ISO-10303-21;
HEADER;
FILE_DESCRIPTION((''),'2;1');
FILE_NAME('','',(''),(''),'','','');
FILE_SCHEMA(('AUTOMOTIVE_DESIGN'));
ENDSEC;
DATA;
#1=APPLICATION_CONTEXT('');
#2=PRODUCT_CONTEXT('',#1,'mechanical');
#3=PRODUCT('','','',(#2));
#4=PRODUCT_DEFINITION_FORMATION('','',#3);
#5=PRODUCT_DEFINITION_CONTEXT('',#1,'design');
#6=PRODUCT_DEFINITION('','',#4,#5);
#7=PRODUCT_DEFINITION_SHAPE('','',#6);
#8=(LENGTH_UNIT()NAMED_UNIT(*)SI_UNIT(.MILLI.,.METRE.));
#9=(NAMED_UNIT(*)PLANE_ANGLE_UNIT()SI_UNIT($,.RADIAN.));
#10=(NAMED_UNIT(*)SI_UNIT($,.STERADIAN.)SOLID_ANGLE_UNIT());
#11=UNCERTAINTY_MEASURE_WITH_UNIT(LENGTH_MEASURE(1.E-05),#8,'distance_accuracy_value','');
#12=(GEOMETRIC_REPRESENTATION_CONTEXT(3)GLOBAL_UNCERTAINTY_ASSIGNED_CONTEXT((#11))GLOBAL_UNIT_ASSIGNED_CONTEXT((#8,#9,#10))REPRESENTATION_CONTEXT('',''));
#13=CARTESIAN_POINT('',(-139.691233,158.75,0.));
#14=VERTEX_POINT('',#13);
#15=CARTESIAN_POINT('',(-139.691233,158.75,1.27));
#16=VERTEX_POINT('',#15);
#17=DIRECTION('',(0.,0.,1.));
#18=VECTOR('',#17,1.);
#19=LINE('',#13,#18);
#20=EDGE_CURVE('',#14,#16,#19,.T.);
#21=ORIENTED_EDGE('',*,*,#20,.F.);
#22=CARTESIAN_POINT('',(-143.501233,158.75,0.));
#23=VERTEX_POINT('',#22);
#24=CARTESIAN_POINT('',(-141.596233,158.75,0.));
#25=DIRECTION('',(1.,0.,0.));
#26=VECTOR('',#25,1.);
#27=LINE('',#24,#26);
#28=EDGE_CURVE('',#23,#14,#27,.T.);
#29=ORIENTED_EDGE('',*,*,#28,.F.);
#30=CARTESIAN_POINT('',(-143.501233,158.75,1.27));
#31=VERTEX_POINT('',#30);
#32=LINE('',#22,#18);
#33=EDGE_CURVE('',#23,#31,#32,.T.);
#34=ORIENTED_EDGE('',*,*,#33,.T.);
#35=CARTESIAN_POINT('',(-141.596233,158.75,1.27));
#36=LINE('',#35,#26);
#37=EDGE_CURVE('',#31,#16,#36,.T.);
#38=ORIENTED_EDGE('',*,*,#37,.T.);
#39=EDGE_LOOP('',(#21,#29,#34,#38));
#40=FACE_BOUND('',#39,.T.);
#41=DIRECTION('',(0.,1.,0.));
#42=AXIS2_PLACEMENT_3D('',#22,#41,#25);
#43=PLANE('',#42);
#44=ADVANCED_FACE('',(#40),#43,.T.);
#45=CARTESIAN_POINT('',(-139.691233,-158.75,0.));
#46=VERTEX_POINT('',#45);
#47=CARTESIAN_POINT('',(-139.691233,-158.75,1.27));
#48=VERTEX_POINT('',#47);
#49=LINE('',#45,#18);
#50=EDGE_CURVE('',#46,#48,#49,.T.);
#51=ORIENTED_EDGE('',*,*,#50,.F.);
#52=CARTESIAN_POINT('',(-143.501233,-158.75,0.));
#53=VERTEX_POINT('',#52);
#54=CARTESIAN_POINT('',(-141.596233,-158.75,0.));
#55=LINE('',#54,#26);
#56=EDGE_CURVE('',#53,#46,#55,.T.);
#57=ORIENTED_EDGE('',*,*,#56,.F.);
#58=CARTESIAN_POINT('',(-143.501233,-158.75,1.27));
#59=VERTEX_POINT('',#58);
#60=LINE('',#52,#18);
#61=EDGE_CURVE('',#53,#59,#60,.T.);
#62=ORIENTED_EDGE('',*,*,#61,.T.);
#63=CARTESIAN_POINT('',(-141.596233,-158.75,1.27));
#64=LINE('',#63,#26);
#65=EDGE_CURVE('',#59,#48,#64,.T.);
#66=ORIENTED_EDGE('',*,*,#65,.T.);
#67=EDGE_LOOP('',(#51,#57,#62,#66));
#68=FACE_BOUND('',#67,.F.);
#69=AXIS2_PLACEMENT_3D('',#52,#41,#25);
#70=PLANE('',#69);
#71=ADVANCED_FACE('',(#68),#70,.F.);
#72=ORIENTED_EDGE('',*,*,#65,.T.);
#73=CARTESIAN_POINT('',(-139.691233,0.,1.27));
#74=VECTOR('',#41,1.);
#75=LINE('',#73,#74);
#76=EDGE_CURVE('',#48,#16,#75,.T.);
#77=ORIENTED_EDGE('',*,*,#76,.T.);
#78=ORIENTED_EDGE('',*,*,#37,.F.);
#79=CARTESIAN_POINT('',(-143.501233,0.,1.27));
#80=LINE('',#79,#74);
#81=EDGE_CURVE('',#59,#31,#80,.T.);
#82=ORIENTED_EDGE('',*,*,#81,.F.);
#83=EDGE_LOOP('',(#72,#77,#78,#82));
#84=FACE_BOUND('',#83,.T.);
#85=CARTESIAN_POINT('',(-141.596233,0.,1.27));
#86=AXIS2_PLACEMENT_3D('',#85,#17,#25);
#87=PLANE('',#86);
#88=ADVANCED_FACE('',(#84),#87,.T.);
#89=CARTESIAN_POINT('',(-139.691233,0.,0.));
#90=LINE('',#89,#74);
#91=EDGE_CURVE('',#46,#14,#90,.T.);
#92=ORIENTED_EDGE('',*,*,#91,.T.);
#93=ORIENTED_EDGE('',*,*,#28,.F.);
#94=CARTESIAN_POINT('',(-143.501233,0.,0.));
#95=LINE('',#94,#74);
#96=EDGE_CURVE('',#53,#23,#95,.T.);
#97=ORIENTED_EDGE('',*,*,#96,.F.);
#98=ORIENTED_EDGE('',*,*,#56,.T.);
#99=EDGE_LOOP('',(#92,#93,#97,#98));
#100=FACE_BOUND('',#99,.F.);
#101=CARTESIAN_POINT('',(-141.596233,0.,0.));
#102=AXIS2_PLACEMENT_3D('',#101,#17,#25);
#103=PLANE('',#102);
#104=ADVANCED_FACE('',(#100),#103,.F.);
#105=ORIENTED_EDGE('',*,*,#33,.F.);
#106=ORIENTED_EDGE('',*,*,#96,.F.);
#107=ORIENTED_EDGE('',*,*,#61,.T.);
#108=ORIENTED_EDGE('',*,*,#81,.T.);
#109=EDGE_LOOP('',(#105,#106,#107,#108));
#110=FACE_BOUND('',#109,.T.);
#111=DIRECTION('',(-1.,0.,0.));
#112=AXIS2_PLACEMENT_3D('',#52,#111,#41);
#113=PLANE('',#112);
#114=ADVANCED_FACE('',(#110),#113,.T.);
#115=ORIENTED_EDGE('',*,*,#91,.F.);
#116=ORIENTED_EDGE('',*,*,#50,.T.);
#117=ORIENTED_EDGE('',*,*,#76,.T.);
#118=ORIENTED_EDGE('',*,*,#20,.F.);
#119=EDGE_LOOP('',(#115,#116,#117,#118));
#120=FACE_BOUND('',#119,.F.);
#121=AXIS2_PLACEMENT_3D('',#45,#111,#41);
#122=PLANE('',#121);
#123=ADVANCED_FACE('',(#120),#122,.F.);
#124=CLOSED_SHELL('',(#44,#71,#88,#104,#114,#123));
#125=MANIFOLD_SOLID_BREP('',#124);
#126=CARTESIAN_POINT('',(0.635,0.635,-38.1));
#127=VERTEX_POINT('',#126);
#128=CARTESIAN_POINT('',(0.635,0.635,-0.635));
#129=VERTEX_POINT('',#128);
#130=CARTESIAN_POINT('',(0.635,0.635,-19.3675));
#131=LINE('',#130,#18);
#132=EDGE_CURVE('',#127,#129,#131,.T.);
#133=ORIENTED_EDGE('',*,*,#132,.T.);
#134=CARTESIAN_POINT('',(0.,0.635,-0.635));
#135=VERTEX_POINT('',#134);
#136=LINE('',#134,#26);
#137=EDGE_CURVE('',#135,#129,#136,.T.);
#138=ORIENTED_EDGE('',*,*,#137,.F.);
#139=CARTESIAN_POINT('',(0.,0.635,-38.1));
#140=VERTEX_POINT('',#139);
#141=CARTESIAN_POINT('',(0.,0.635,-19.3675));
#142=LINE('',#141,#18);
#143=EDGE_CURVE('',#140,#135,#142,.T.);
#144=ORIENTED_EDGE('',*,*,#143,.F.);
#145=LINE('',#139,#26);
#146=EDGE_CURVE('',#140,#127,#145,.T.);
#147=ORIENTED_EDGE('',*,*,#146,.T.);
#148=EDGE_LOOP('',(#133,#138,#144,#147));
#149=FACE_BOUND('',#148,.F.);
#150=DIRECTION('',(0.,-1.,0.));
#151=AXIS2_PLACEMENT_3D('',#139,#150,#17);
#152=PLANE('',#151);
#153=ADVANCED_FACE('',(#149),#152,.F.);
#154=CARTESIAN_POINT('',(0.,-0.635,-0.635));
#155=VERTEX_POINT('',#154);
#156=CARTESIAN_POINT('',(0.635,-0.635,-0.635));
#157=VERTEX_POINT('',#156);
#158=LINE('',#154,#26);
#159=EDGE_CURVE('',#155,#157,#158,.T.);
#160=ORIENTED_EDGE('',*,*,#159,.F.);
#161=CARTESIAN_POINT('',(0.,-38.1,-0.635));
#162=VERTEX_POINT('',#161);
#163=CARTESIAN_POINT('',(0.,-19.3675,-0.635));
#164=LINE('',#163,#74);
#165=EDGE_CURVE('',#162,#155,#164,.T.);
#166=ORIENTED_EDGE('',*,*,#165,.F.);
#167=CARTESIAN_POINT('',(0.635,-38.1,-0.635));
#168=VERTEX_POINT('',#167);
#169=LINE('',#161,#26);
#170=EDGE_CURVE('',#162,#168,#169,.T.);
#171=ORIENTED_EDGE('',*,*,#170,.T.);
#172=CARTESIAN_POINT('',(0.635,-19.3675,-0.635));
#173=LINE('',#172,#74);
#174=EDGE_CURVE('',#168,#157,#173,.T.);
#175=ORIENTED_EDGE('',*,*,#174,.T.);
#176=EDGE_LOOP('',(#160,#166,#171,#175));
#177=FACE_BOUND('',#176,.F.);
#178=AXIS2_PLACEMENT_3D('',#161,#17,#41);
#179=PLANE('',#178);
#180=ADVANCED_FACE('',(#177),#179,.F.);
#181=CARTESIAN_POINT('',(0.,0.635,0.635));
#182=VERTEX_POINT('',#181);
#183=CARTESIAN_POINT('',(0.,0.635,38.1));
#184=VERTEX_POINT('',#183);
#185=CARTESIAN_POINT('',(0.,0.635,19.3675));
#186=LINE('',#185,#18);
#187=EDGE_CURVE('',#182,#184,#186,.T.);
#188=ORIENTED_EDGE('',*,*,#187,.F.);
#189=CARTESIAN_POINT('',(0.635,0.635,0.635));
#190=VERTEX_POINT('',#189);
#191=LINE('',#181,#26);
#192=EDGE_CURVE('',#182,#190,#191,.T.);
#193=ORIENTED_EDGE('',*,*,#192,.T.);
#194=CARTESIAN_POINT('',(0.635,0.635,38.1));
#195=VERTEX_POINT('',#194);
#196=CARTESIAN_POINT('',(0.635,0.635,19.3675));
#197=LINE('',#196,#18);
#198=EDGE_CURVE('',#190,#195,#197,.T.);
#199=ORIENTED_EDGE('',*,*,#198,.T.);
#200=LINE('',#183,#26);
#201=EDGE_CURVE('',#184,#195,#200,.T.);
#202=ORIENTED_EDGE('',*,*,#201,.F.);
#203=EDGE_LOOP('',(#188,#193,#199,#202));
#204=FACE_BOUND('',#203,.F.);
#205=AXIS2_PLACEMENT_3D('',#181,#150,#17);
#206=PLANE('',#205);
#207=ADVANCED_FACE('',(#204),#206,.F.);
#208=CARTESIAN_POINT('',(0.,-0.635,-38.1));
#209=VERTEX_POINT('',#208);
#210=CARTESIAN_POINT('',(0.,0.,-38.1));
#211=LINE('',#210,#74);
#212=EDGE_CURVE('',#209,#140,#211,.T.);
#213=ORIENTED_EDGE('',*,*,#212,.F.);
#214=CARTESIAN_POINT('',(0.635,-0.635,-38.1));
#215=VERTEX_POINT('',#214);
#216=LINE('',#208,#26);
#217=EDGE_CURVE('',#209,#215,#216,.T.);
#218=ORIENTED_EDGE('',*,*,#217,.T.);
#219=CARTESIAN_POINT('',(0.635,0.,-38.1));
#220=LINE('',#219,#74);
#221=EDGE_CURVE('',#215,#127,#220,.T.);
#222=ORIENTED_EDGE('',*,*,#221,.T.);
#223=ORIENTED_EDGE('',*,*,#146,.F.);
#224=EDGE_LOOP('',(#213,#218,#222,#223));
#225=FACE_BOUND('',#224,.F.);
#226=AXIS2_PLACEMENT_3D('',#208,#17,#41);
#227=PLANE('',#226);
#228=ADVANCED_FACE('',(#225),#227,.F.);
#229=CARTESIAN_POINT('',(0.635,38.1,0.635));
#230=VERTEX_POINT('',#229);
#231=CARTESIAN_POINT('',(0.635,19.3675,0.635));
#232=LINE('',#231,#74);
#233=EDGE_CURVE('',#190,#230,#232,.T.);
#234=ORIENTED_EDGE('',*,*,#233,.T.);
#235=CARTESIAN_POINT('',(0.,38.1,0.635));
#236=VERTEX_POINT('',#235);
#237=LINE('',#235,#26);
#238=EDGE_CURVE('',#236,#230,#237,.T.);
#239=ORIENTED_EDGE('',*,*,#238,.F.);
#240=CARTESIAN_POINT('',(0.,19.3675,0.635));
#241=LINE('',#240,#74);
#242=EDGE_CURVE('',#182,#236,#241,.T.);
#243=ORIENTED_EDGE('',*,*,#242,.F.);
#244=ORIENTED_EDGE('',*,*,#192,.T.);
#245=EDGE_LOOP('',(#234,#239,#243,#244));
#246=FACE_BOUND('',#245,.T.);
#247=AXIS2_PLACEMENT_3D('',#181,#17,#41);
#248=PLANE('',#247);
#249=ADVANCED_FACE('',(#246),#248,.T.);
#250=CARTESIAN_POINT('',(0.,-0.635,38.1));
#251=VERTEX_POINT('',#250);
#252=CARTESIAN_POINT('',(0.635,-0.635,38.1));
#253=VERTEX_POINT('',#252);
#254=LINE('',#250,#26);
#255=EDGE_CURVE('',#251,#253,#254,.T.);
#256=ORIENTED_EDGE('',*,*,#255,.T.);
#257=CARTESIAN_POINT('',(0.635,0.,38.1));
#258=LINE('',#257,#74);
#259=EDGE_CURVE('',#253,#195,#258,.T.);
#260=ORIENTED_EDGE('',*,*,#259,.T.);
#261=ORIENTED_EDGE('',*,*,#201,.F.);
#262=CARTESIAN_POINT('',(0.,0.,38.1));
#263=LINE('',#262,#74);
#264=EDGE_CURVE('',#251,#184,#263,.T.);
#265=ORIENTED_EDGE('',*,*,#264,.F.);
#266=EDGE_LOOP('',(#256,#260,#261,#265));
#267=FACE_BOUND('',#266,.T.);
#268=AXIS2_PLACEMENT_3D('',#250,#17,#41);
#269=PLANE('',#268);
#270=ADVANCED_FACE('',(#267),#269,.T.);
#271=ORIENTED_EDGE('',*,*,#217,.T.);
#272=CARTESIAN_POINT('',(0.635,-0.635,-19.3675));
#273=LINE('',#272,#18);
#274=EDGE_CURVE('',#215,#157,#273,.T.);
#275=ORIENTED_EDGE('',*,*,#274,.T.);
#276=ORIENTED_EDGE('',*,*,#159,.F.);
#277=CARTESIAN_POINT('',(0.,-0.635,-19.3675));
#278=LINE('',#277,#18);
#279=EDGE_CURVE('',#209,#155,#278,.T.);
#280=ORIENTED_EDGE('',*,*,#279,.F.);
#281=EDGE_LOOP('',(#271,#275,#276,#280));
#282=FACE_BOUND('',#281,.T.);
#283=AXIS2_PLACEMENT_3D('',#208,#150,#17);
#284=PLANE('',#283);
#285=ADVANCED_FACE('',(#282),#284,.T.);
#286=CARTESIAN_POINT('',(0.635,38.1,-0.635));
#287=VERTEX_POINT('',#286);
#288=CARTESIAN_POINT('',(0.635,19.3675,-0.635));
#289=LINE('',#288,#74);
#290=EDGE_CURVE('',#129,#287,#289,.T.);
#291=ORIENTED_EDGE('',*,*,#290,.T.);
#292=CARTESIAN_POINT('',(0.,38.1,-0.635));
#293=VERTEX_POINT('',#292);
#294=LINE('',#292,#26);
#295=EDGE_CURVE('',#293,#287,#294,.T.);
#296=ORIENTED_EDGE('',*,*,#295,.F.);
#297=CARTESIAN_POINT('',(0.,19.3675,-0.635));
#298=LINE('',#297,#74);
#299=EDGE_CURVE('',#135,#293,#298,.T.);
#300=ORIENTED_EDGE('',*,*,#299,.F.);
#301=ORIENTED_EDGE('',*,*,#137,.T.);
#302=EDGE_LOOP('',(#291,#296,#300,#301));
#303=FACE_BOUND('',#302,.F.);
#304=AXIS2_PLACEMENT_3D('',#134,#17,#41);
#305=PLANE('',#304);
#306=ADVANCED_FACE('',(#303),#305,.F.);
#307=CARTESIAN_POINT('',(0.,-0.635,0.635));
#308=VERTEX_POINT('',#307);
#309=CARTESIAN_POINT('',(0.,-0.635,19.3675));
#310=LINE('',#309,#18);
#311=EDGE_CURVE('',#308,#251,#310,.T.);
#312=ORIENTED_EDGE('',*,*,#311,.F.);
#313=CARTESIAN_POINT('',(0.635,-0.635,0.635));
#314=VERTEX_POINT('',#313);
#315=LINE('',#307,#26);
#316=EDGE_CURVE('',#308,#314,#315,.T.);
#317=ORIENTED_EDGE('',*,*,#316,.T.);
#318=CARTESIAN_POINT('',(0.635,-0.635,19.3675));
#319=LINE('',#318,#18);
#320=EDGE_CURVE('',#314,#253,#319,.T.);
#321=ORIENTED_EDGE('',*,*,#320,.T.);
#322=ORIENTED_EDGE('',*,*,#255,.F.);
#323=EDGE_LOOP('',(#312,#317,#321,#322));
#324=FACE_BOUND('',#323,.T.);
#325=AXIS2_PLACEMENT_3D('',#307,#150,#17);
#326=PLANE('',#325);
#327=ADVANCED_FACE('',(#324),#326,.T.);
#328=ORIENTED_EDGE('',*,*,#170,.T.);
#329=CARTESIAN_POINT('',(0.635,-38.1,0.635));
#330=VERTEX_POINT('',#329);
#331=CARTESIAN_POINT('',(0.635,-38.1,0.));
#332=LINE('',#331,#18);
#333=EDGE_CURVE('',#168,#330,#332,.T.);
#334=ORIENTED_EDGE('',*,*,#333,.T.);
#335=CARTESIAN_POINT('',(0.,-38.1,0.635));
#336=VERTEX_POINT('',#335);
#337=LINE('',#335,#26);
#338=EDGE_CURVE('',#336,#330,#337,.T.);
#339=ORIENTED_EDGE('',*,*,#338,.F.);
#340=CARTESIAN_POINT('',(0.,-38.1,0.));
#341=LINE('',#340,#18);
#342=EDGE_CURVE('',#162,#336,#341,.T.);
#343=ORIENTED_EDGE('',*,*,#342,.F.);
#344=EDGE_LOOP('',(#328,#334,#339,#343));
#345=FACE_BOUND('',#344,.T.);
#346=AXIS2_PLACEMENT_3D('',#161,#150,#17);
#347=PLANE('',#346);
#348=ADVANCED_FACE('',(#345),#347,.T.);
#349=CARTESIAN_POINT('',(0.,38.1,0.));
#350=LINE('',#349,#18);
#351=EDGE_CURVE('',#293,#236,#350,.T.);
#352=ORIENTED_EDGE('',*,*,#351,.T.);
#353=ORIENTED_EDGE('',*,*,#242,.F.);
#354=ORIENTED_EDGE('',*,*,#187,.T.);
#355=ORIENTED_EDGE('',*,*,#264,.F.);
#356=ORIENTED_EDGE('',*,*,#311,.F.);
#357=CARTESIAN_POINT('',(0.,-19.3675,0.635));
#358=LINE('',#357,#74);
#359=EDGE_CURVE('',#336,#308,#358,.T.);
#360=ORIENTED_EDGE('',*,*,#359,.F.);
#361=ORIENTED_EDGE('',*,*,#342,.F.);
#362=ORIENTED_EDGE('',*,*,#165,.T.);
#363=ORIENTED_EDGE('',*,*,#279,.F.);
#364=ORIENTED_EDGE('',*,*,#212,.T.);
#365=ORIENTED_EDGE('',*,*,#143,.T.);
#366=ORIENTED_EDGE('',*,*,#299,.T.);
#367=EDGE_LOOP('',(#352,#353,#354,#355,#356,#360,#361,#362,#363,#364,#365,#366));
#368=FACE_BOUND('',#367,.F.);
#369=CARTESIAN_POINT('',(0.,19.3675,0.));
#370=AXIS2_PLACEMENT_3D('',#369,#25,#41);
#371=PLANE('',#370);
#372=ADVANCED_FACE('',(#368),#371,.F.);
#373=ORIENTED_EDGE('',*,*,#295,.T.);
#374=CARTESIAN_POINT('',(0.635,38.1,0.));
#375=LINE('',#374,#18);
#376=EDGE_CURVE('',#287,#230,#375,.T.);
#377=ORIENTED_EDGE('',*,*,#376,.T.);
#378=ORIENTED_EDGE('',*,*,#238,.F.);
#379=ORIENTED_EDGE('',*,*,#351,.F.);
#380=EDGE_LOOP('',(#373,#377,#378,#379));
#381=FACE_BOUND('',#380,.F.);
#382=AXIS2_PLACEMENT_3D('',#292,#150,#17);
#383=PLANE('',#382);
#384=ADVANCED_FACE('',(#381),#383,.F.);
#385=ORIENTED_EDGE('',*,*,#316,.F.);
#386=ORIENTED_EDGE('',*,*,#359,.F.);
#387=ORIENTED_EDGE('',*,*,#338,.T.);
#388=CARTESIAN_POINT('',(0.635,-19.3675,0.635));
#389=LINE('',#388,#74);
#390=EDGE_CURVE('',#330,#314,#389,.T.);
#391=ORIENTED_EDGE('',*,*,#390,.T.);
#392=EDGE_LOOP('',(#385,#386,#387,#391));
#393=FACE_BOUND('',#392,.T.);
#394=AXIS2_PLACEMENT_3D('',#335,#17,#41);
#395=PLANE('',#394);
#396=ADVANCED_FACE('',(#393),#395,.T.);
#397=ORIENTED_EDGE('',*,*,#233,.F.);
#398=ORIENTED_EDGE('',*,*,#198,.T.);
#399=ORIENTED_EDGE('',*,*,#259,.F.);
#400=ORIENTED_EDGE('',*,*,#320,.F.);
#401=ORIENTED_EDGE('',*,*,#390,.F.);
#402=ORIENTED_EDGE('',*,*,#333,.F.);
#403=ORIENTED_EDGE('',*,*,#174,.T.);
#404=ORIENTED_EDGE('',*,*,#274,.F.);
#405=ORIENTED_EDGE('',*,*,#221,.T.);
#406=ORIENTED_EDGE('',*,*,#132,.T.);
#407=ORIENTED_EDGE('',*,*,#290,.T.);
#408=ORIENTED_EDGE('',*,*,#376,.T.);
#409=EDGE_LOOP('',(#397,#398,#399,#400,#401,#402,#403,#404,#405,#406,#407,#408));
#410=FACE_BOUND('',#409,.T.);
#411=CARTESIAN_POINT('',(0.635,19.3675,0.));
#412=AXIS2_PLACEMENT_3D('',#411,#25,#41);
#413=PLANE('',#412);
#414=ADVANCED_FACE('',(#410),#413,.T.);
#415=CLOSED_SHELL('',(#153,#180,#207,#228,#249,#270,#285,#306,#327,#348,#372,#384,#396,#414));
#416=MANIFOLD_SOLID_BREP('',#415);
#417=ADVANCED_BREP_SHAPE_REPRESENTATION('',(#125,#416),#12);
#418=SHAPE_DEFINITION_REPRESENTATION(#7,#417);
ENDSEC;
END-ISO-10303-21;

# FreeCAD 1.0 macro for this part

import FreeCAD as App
import Part
import Sketcher

V = App.Vector
Q = App.Units.Quantity


def add_polygon(sketch, points):
    """Adds a closed chain of lines whose ends are joined by coincident constraints."""
    first, n = sketch.GeometryCount, len(points)
    for a, b in zip(points, points[1:] + points[:1]):
        sketch.addGeometry(Part.LineSegment(App.Vector(*a, 0), App.Vector(*b, 0)), False)
    for i in range(n):
        sketch.addConstraint(Sketcher.Constraint("Coincident", first + i, 2, first + (i + 1) % n, 1))

doc = App.newDocument("Part")
body = doc.addObject("PartDesign::Body", "Body")

# Sketch on XY plane
sketch1 = doc.addObject("Sketcher::SketchObject", "Sketch")
body.addObject(sketch1)
sketch1.AttachmentSupport = (doc.XY_Plane, [""])
sketch1.MapMode = "FlatFace"
add_polygon(sketch1, [(-143.501233, 158.75), (-143.501233, -158.75), (-139.691233, -158.75), (-139.691233, 158.75)])  # lines 0-3
sketch1.addConstraint([
    Sketcher.Constraint("Vertical", 0),
    Sketcher.Constraint("Horizontal", 1),
    Sketcher.Constraint("Vertical", 2),
    Sketcher.Constraint("Horizontal", 3),
    Sketcher.Constraint("DistanceY", 0, 2, 0, 1, Q("12.5 in")),
    Sketcher.Constraint("DistanceX", 1, 1, 1, 2, Q("0.15 in")),
    Sketcher.Constraint("DistanceY", 0, 2, -1, 1, Q("6.25 in")),
    Sketcher.Constraint("DistanceX", 0, 2, -1, 1, Q("143.501233 mm")),
])
pad1 = doc.addObject("PartDesign::Pad", "Pad")
body.addObject(pad1)
pad1.Profile = sketch1
pad1.Length = Q("0.05 in")
body2 = doc.addObject("PartDesign::Body", "Body001")

# Sketch on YZ plane
sketch2 = doc.addObject("Sketcher::SketchObject", "Sketch001")
body2.addObject(sketch2)
sketch2.AttachmentSupport = (doc.getObject("YZ_Plane001"), [""])
sketch2.MapMode = "FlatFace"
add_polygon(sketch2, [(0.635, -0.635), (38.1, -0.635), (38.1, 0.635), (0.635, 0.635), (0.635, 38.1), (-0.635, 38.1), (-0.635, 0.635), (-38.1, 0.635), (-38.1, -0.635), (-0.635, -0.635), (-0.635, -38.1), (0.635, -38.1)])  # lines 0-11
sketch2.addConstraint([
    Sketcher.Constraint("Horizontal", 0),
    Sketcher.Constraint("Vertical", 1),
    Sketcher.Constraint("Horizontal", 2),
    Sketcher.Constraint("Vertical", 3),
    Sketcher.Constraint("Horizontal", 4),
    Sketcher.Constraint("Vertical", 5),
    Sketcher.Constraint("Horizontal", 6),
    Sketcher.Constraint("Vertical", 7),
    Sketcher.Constraint("Horizontal", 8),
    Sketcher.Constraint("Vertical", 9),
    Sketcher.Constraint("Horizontal", 10),
    Sketcher.Constraint("Vertical", 11),
    Sketcher.Constraint("Symmetric", 0, 2, 6, 2, -1, 1),
    Sketcher.Constraint("Symmetric", 2, 2, 8, 2, -1, 1),
    Sketcher.Constraint("Symmetric", 4, 2, 10, 2, -1, 1),
    Sketcher.Constraint("Symmetric", 2, 2, 5, 2, -2),
    Sketcher.Constraint("Equal", 10, 1),
    Sketcher.Constraint("Equal", 8, 3),
    Sketcher.Constraint("DistanceX", 6, 2, 1, 2, Q("3 in")),
    Sketcher.Constraint("DistanceX", 4, 2, 4, 1, Q("0.05 in")),
])
pad2 = doc.addObject("PartDesign::Pad", "Pad001")
body2.addObject(pad2)
pad2.Profile = sketch2
pad2.Length = Q("0.025 in")

doc.recompute()
